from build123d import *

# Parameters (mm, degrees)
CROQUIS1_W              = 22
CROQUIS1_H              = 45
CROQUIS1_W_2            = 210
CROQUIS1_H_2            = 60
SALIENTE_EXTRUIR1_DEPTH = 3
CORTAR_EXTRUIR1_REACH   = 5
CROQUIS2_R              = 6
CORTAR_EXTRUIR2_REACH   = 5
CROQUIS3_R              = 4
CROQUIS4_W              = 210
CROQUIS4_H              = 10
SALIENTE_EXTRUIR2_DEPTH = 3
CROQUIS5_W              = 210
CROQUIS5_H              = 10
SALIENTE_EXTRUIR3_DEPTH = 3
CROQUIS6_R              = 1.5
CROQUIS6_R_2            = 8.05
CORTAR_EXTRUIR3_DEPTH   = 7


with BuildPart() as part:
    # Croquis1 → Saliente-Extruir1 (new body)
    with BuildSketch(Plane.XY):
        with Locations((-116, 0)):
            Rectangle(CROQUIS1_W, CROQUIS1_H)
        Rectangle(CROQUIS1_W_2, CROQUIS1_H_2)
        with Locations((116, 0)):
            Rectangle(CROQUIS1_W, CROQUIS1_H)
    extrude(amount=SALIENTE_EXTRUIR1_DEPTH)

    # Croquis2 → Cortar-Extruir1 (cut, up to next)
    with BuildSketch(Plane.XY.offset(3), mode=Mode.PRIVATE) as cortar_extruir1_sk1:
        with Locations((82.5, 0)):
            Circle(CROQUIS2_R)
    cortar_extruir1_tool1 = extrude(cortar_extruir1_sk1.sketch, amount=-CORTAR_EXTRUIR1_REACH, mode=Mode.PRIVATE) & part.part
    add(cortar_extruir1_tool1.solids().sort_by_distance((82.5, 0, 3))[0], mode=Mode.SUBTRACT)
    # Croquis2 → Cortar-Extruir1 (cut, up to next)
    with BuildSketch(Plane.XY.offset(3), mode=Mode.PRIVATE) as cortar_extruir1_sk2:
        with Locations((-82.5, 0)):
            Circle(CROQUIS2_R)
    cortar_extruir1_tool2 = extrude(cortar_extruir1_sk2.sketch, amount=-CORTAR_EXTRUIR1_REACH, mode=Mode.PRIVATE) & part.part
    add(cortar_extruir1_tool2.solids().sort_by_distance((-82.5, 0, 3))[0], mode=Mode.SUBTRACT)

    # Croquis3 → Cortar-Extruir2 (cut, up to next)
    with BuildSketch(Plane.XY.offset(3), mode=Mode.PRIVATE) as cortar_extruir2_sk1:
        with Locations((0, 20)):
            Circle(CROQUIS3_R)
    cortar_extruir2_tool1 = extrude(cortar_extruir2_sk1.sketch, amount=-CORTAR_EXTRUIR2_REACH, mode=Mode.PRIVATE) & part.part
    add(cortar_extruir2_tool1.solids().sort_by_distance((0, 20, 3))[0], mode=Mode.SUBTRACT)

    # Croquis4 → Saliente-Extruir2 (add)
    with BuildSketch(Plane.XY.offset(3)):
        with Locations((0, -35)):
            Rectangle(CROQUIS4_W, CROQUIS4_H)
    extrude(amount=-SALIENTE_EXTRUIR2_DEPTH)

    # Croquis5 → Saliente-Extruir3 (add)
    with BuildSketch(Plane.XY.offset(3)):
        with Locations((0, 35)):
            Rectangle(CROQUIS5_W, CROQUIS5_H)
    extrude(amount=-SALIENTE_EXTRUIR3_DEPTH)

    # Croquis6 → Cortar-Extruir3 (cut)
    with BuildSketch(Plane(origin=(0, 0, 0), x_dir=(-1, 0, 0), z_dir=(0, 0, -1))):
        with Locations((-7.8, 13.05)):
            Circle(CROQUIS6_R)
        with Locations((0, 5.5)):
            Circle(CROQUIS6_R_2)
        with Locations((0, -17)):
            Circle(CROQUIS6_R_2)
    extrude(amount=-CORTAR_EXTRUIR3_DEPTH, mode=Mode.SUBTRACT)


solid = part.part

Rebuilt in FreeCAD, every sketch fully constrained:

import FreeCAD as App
import Part
import Sketcher
from FreeCAD import Vector
Q = App.Units.Quantity

doc = App.newDocument("Part")
body = doc.addObject("PartDesign::Body", "Body")

# Sketch on XY plane
sketch1 = body.newObject("Sketcher::SketchObject", "Sketch")
sketch1.AttachmentSupport = (doc.getObject("XY_Plane"), [""])
sketch1.MapMode = "FlatFace"
sketch1.addGeometry(Part.LineSegment(Vector(-127, 22, 0), Vector(-127, -22, 0)), False)
sketch1.addGeometry(Part.LineSegment(Vector(-127, -22, 0), Vector(-105, -22, 0)), False)
sketch1.addGeometry(Part.LineSegment(Vector(-105, -22, 0), Vector(-105, -30, 0)), False)
sketch1.addGeometry(Part.LineSegment(Vector(-105, -30, 0), Vector(105, -30, 0)), False)
sketch1.addGeometry(Part.LineSegment(Vector(105, -30, 0), Vector(105, -22, 0)), False)
sketch1.addGeometry(Part.LineSegment(Vector(105, -22, 0), Vector(127, -22, 0)), False)
sketch1.addGeometry(Part.LineSegment(Vector(127, -22, 0), Vector(127, 22, 0)), False)
sketch1.addGeometry(Part.LineSegment(Vector(127, 22, 0), Vector(105, 22, 0)), False)
sketch1.addGeometry(Part.LineSegment(Vector(105, 22, 0), Vector(105, 30, 0)), False)
sketch1.addGeometry(Part.LineSegment(Vector(105, 30, 0), Vector(-105, 30, 0)), False)
sketch1.addGeometry(Part.LineSegment(Vector(-105, 30, 0), Vector(-105, 22, 0)), False)
sketch1.addGeometry(Part.LineSegment(Vector(-105, 22, 0), Vector(-127, 22, 0)), False)
sketch1.addConstraint(Sketcher.Constraint("Coincident", 0, 2, 1, 1))
sketch1.addConstraint(Sketcher.Constraint("Coincident", 1, 2, 2, 1))
sketch1.addConstraint(Sketcher.Constraint("Coincident", 2, 2, 3, 1))
sketch1.addConstraint(Sketcher.Constraint("Coincident", 3, 2, 4, 1))
sketch1.addConstraint(Sketcher.Constraint("Coincident", 4, 2, 5, 1))
sketch1.addConstraint(Sketcher.Constraint("Coincident", 5, 2, 6, 1))
sketch1.addConstraint(Sketcher.Constraint("Coincident", 6, 2, 7, 1))
sketch1.addConstraint(Sketcher.Constraint("Coincident", 7, 2, 8, 1))
sketch1.addConstraint(Sketcher.Constraint("Coincident", 8, 2, 9, 1))
sketch1.addConstraint(Sketcher.Constraint("Coincident", 9, 2, 10, 1))
sketch1.addConstraint(Sketcher.Constraint("Coincident", 10, 2, 11, 1))
sketch1.addConstraint(Sketcher.Constraint("Coincident", 11, 2, 0, 1))
sketch1.addConstraint(Sketcher.Constraint("Vertical", 0))
sketch1.addConstraint(Sketcher.Constraint("Horizontal", 1))
sketch1.addConstraint(Sketcher.Constraint("Vertical", 2))
sketch1.addConstraint(Sketcher.Constraint("Horizontal", 3))
sketch1.addConstraint(Sketcher.Constraint("Vertical", 4))
sketch1.addConstraint(Sketcher.Constraint("Horizontal", 5))
sketch1.addConstraint(Sketcher.Constraint("Vertical", 6))
sketch1.addConstraint(Sketcher.Constraint("Horizontal", 7))
sketch1.addConstraint(Sketcher.Constraint("Vertical", 8))
sketch1.addConstraint(Sketcher.Constraint("Horizontal", 9))
sketch1.addConstraint(Sketcher.Constraint("Vertical", 10))
sketch1.addConstraint(Sketcher.Constraint("Horizontal", 11))
sketch1.addConstraint(Sketcher.Constraint("Symmetric", 0, 2, 6, 2, -1, 1))
sketch1.addConstraint(Sketcher.Constraint("Symmetric", 2, 2, 8, 2, -1, 1))
sketch1.addConstraint(Sketcher.Constraint("Symmetric", 4, 2, 10, 2, -1, 1))
sketch1.addConstraint(Sketcher.Constraint("Symmetric", 1, 2, 4, 2, -2))
sketch1.addConstraint(Sketcher.Constraint("DistanceX", 1, 1, 1, 2, Q("22 mm")))
sketch1.addConstraint(Sketcher.Constraint("DistanceX", 3, 1, 3, 2, Q("210 mm")))
sketch1.addConstraint(Sketcher.Constraint("DistanceY", 0, 2, 0, 1, Q("45 mm")))
sketch1.addConstraint(Sketcher.Constraint("DistanceY", 2, 2, 2, 1, Q("7.5 mm")))
pad1 = body.newObject("PartDesign::Pad", "Pad")
pad1.Profile = sketch1
pad1.Length = 3

# Sketch on XY plane
sketch2 = body.newObject("Sketcher::SketchObject", "Sketch001")
sketch2.AttachmentSupport = (doc.getObject("XY_Plane"), [""])
sketch2.MapMode = "FlatFace"
sketch2.AttachmentOffset = App.Placement(Vector(0, 0, 3), App.Rotation())
sketch2.addGeometry(Part.Circle(Vector(82, 0, 0), Vector(0, 0, 1), 6), False)
sketch2.addConstraint(Sketcher.Constraint("PointOnObject", 0, 3, -1))
sketch2.addConstraint(Sketcher.Constraint("Diameter", 0, Q("12 mm")))
sketch2.addConstraint(Sketcher.Constraint("DistanceX", -1, 1, 0, 3, Q("82.5 mm")))
pocket1 = body.newObject("PartDesign::Pocket", "Pocket")
pocket1.Profile = sketch2
pocket1.Type = "UpToFirst"

# Sketch on XY plane
sketch3 = body.newObject("Sketcher::SketchObject", "Sketch002")
sketch3.AttachmentSupport = (doc.getObject("XY_Plane"), [""])
sketch3.MapMode = "FlatFace"
sketch3.AttachmentOffset = App.Placement(Vector(0, 0, 3), App.Rotation())
sketch3.addGeometry(Part.Circle(Vector(-82, 0, 0), Vector(0, 0, 1), 6), False)
sketch3.addConstraint(Sketcher.Constraint("PointOnObject", 0, 3, -1))
sketch3.addConstraint(Sketcher.Constraint("Diameter", 0, Q("12 mm")))
sketch3.addConstraint(Sketcher.Constraint("DistanceX", 0, 3, -1, 1, Q("82.5 mm")))
pocket2 = body.newObject("PartDesign::Pocket", "Pocket001")
pocket2.Profile = sketch3
pocket2.Type = "UpToFirst"

# Sketch on XY plane
sketch4 = body.newObject("Sketcher::SketchObject", "Sketch003")
sketch4.AttachmentSupport = (doc.getObject("XY_Plane"), [""])
sketch4.MapMode = "FlatFace"
sketch4.AttachmentOffset = App.Placement(Vector(0, 0, 3), App.Rotation())
sketch4.addGeometry(Part.Circle(Vector(0, 20, 0), Vector(0, 0, 1), 4), False)
sketch4.addConstraint(Sketcher.Constraint("PointOnObject", 0, 3, -2))
sketch4.addConstraint(Sketcher.Constraint("Diameter", 0, Q("8 mm")))
sketch4.addConstraint(Sketcher.Constraint("DistanceY", -1, 1, 0, 3, Q("20 mm")))
pocket3 = body.newObject("PartDesign::Pocket", "Pocket002")
pocket3.Profile = sketch4
pocket3.Type = "UpToFirst"

# Sketch on XY plane
sketch5 = body.newObject("Sketcher::SketchObject", "Sketch004")
sketch5.AttachmentSupport = (doc.getObject("XY_Plane"), [""])
sketch5.MapMode = "FlatFace"
sketch5.AttachmentOffset = App.Placement(Vector(0, 0, 3), App.Rotation())
sketch5.addGeometry(Part.LineSegment(Vector(-105, -30, 0), Vector(-105, -40, 0)), False)
sketch5.addGeometry(Part.LineSegment(Vector(-105, -40, 0), Vector(105, -40, 0)), False)
sketch5.addGeometry(Part.LineSegment(Vector(105, -40, 0), Vector(105, -30, 0)), False)
sketch5.addGeometry(Part.LineSegment(Vector(105, -30, 0), Vector(-105, -30, 0)), False)
sketch5.addConstraint(Sketcher.Constraint("Coincident", 0, 2, 1, 1))
sketch5.addConstraint(Sketcher.Constraint("Coincident", 1, 2, 2, 1))
sketch5.addConstraint(Sketcher.Constraint("Coincident", 2, 2, 3, 1))
sketch5.addConstraint(Sketcher.Constraint("Coincident", 3, 2, 0, 1))
sketch5.addConstraint(Sketcher.Constraint("Vertical", 0))
sketch5.addConstraint(Sketcher.Constraint("Horizontal", 1))
sketch5.addConstraint(Sketcher.Constraint("Vertical", 2))
sketch5.addConstraint(Sketcher.Constraint("Horizontal", 3))
sketch5.addConstraint(Sketcher.Constraint("DistanceX", 1, 1, 1, 2, Q("210 mm")))
sketch5.addConstraint(Sketcher.Constraint("DistanceY", 0, 2, 0, 1, Q("10 mm")))
sketch5.addConstraint(Sketcher.Constraint("DistanceX", 0, 2, -1, 1, Q("105 mm")))
sketch5.addConstraint(Sketcher.Constraint("DistanceY", 0, 2, -1, 1, Q("40 mm")))
pad2 = body.newObject("PartDesign::Pad", "Pad001")
pad2.Profile = sketch5
pad2.Length = 3
pad2.Reversed = True

# Sketch on XY plane
sketch6 = body.newObject("Sketcher::SketchObject", "Sketch005")
sketch6.AttachmentSupport = (doc.getObject("XY_Plane"), [""])
sketch6.MapMode = "FlatFace"
sketch6.AttachmentOffset = App.Placement(Vector(0, 0, 3), App.Rotation())
sketch6.addGeometry(Part.LineSegment(Vector(-105, 40, 0), Vector(-105, 30, 0)), False)
sketch6.addGeometry(Part.LineSegment(Vector(-105, 30, 0), Vector(105, 30, 0)), False)
sketch6.addGeometry(Part.LineSegment(Vector(105, 30, 0), Vector(105, 40, 0)), False)
sketch6.addGeometry(Part.LineSegment(Vector(105, 40, 0), Vector(-105, 40, 0)), False)
sketch6.addConstraint(Sketcher.Constraint("Coincident", 0, 2, 1, 1))
sketch6.addConstraint(Sketcher.Constraint("Coincident", 1, 2, 2, 1))
sketch6.addConstraint(Sketcher.Constraint("Coincident", 2, 2, 3, 1))
sketch6.addConstraint(Sketcher.Constraint("Coincident", 3, 2, 0, 1))
sketch6.addConstraint(Sketcher.Constraint("Vertical", 0))
sketch6.addConstraint(Sketcher.Constraint("Horizontal", 1))
sketch6.addConstraint(Sketcher.Constraint("Vertical", 2))
sketch6.addConstraint(Sketcher.Constraint("Horizontal", 3))
sketch6.addConstraint(Sketcher.Constraint("DistanceX", 1, 1, 1, 2, Q("210 mm")))
sketch6.addConstraint(Sketcher.Constraint("DistanceY", 0, 2, 0, 1, Q("10 mm")))
sketch6.addConstraint(Sketcher.Constraint("DistanceX", 0, 2, -1, 1, Q("105 mm")))
sketch6.addConstraint(Sketcher.Constraint("DistanceY", -1, 1, 0, 2, Q("30 mm")))
pad3 = body.newObject("PartDesign::Pad", "Pad002")
pad3.Profile = sketch6
pad3.Length = 3
pad3.Reversed = True

# Sketch on XY plane
sketch7 = body.newObject("Sketcher::SketchObject", "Sketch006")
sketch7.AttachmentSupport = (doc.getObject("XY_Plane"), [""])
sketch7.MapMode = "FlatFace"
sketch7.addGeometry(Part.Circle(Vector(7.8, 13.1, 0), Vector(0, 0, 1), 1.5), False)
sketch7.addGeometry(Part.Circle(Vector(0, 5.5, 0), Vector(0, 0, 1), 8.1), False)
sketch7.addGeometry(Part.Circle(Vector(0, -17, 0), Vector(0, 0, 1), 8.1), False)
sketch7.addConstraint(Sketcher.Constraint("Equal", 1, 2))
sketch7.addConstraint(Sketcher.Constraint("PointOnObject", 1, 3, -2))
sketch7.addConstraint(Sketcher.Constraint("PointOnObject", 2, 3, -2))
sketch7.addConstraint(Sketcher.Constraint("Diameter", 0, Q("3 mm")))
sketch7.addConstraint(Sketcher.Constraint("Diameter", 1, Q("16.1 mm")))
sketch7.addConstraint(Sketcher.Constraint("DistanceY", 2, 3, -1, 1, Q("17 mm")))
sketch7.addConstraint(Sketcher.Constraint("DistanceX", -1, 1, 0, 3, Q("7.8 mm")))
sketch7.addConstraint(Sketcher.Constraint("DistanceY", -1, 1, 1, 3, Q("5.5 mm")))
sketch7.addConstraint(Sketcher.Constraint("DistanceY", -1, 1, 0, 3, Q("13.05 mm")))
pocket4 = body.newObject("PartDesign::Pocket", "Pocket003")
pocket4.Profile = sketch7
pocket4.Length = 7
pocket4.Reversed = True

doc.recompute()
